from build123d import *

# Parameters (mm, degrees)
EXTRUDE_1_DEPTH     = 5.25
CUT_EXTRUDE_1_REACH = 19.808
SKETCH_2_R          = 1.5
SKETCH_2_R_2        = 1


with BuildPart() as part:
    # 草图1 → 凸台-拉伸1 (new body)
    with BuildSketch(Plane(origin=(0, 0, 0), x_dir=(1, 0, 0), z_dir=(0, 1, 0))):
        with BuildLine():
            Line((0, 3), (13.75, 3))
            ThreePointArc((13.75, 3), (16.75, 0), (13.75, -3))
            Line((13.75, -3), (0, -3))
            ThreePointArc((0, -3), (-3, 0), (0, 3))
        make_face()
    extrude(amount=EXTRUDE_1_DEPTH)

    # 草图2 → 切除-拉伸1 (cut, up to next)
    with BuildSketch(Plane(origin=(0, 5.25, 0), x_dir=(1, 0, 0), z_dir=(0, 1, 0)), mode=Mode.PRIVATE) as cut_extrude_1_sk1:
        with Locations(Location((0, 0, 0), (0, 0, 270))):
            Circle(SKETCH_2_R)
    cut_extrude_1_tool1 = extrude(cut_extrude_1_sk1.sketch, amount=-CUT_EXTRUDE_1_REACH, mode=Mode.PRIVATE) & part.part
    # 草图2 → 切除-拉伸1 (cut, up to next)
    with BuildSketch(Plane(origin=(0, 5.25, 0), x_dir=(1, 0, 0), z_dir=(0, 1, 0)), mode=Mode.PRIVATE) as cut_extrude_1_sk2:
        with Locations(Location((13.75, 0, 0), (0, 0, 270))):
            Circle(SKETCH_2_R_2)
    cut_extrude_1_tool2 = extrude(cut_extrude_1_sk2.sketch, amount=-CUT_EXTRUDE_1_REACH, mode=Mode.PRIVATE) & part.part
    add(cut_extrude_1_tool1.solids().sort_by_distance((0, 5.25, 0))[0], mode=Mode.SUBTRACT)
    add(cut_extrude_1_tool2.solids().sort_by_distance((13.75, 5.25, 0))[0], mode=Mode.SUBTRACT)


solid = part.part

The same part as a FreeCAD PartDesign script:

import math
import FreeCAD as App
import Part
import Sketcher

V = App.Vector

doc = App.newDocument("Part")
body = doc.addObject("PartDesign::Body", "Body")

sketch1 = body.newObject("Sketcher::SketchObject", "Sketch")
sketch1.AttachmentSupport = (doc.getObject("XZ_Plane"), [""])
sketch1.MapMode = "FlatFace"
sketch1.addGeometry(Part.LineSegment(V(13.8, -3, 0), V(0, -3, 0)), False)
sketch1.addGeometry(Part.ArcOfCircle(Part.Circle(V(0, 0, 0), V(0, 0, 1), 3), math.radians(90), math.radians(270)), False)
sketch1.addGeometry(Part.LineSegment(V(0, 3, 0), V(13.8, 3, 0)), False)
sketch1.addGeometry(Part.ArcOfCircle(Part.Circle(V(13.8, 0, 0), V(0, 0, 1), 3), math.radians(-90), math.radians(90)), False)
sketch1.addConstraint(Sketcher.Constraint("Tangent", 0, 2, 1, 2))
sketch1.addConstraint(Sketcher.Constraint("Tangent", 1, 1, 2, 1))
sketch1.addConstraint(Sketcher.Constraint("Tangent", 2, 2, 3, 2))
sketch1.addConstraint(Sketcher.Constraint("Tangent", 3, 1, 0, 1))
sketch1.addConstraint(Sketcher.Constraint("Horizontal", 0))
sketch1.addConstraint(Sketcher.Constraint("Horizontal", 2))
sketch1.addConstraint(Sketcher.Constraint("Coincident", 1, 3, -1, 1))
sketch1.addConstraint(Sketcher.Constraint("Radius", 1, 3.0))
sketch1.addConstraint(Sketcher.Constraint("DistanceX", 0, 2, 0, 1, 13.75))
pad1 = body.newObject("PartDesign::Pad", "Pad")
pad1.Profile = sketch1
pad1.Length = 5.25
pad1.Reversed = True

sketch2 = body.newObject("Sketcher::SketchObject", "Sketch001")
sketch2.AttachmentSupport = (doc.getObject("XZ_Plane"), [""])
sketch2.MapMode = "FlatFace"
sketch2.AttachmentOffset = App.Placement(V(0, 0, -5.25), App.Rotation())
sketch2.addGeometry(Part.Circle(V(0, 0, 0), V(0, 0, 1), 1.5), False)
sketch2.addConstraint(Sketcher.Constraint("Coincident", 0, 3, -1, 1))
sketch2.addConstraint(Sketcher.Constraint("Diameter", 0, 3.0))
pocket1 = body.newObject("PartDesign::Pocket", "Pocket")
pocket1.Profile = sketch2
pocket1.Type = "UpToFirst"
pocket1.Reversed = True

sketch3 = body.newObject("Sketcher::SketchObject", "Sketch002")
sketch3.AttachmentSupport = (doc.getObject("XZ_Plane"), [""])
sketch3.MapMode = "FlatFace"
sketch3.AttachmentOffset = App.Placement(V(0, 0, -5.25), App.Rotation())
sketch3.addGeometry(Part.Circle(V(13.8, 0, 0), V(0, 0, 1), 1), False)
sketch3.addConstraint(Sketcher.Constraint("PointOnObject", 0, 3, -1))
sketch3.addConstraint(Sketcher.Constraint("Diameter", 0, 2.0))
sketch3.addConstraint(Sketcher.Constraint("DistanceX", -1, 1, 0, 3, 13.75))
pocket2 = body.newObject("PartDesign::Pocket", "Pocket001")
pocket2.Profile = sketch3
pocket2.Type = "UpToFirst"
pocket2.Reversed = True

doc.recompute()
